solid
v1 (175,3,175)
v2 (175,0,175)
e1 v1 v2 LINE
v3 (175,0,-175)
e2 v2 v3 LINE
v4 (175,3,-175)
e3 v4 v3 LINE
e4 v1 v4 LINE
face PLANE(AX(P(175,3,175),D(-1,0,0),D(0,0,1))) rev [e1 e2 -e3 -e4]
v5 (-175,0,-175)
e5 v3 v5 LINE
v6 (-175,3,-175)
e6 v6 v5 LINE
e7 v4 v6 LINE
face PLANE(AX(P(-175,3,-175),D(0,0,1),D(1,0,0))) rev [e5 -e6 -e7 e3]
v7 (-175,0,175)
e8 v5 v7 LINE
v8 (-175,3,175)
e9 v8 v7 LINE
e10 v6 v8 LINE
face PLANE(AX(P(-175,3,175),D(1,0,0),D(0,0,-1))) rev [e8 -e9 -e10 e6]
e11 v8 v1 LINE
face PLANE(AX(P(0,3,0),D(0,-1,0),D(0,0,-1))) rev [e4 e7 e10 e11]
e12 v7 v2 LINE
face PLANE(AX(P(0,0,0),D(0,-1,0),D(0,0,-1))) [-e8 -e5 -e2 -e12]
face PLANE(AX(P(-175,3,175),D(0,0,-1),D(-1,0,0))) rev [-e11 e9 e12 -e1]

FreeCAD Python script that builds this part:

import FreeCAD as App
import Part
import Sketcher
Q = App.Units.Quantity

doc = App.newDocument("Part")
body = doc.addObject("PartDesign::Body", "Body")

# Sketch on XZ plane
sketch1 = body.newObject("Sketcher::SketchObject", "Sketch")
sketch1.AttachmentSupport = (doc.getObject("XZ_Plane"), [""])
sketch1.MapMode = "FlatFace"
sketch1.addGeometry(Part.LineSegment(App.Vector(-175, -175, 0), App.Vector(-175, 175, 0)), False)
sketch1.addGeometry(Part.LineSegment(App.Vector(-175, 175, 0), App.Vector(175, 175, 0)), False)
sketch1.addGeometry(Part.LineSegment(App.Vector(175, 175, 0), App.Vector(175, -175, 0)), False)
sketch1.addGeometry(Part.LineSegment(App.Vector(175, -175, 0), App.Vector(-175, -175, 0)), False)
sketch1.addConstraint(Sketcher.Constraint("Coincident", 0, 2, 1, 1))
sketch1.addConstraint(Sketcher.Constraint("Coincident", 1, 2, 2, 1))
sketch1.addConstraint(Sketcher.Constraint("Coincident", 2, 2, 3, 1))
sketch1.addConstraint(Sketcher.Constraint("Coincident", 3, 2, 0, 1))
sketch1.addConstraint(Sketcher.Constraint("Vertical", 0))
sketch1.addConstraint(Sketcher.Constraint("Horizontal", 1))
sketch1.addConstraint(Sketcher.Constraint("Vertical", 2))
sketch1.addConstraint(Sketcher.Constraint("Horizontal", 3))
sketch1.addConstraint(Sketcher.Constraint("Symmetric", 0, 2, 2, 2, -1, 1))
sketch1.addConstraint(Sketcher.Constraint("Equal", 3, 0))
sketch1.addConstraint(Sketcher.Constraint("DistanceX", 1, 1, 1, 2, Q("350 mm")))
pad1 = body.newObject("PartDesign::Pad", "Pad")
pad1.Profile = sketch1
pad1.Length = 3
pad1.Reversed = True

doc.recompute()
